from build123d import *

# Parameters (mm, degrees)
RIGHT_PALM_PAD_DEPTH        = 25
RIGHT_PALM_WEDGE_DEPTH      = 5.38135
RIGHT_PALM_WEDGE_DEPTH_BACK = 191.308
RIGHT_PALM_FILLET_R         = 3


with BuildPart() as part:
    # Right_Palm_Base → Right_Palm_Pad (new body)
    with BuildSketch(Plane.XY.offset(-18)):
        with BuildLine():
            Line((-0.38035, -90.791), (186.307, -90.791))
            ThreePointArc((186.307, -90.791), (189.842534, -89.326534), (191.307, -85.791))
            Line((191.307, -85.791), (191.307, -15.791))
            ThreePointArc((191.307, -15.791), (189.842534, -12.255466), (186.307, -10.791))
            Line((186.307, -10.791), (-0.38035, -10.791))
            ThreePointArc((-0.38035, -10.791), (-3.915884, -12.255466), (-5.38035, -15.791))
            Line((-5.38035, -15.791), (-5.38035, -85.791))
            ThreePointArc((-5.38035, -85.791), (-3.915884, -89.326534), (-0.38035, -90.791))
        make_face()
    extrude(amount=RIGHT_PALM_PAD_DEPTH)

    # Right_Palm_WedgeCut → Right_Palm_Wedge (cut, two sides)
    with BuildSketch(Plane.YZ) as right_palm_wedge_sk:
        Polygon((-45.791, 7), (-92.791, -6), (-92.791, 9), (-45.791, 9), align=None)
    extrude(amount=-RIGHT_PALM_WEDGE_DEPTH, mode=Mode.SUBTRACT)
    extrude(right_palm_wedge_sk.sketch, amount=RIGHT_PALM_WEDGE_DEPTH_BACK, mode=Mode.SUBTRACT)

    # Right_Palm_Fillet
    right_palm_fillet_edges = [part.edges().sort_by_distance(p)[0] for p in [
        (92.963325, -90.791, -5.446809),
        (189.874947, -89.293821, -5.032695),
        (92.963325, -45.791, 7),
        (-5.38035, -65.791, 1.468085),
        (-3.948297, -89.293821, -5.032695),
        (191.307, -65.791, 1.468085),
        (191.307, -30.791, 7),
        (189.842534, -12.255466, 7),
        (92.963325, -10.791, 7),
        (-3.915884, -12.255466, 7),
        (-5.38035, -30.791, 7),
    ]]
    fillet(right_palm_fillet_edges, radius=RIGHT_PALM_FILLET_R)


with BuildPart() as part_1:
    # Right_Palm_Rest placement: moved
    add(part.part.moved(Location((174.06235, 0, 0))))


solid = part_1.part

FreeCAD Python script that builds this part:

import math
import FreeCAD as App
import Part
import Sketcher


def edges_at(feature, points):
    """Names of the edges that pass closest to the given points."""
    edges = feature.Shape.Edges
    near = lambda p: min(range(len(edges)), key=lambda i: edges[i].distToShape(Part.Vertex(*p))[0])
    return sorted({f"Edge{near(p) + 1}" for p in points})

doc = App.newDocument("Part")
body = doc.addObject("PartDesign::Body", "Body")

sketch1 = body.newObject("Sketcher::SketchObject", "Sketch")
sketch1.AttachmentSupport = (doc.getObject("XY_Plane"), [""])
sketch1.MapMode = "FlatFace"
sketch1.AttachmentOffset = App.Placement(App.Vector(0, 0, -18), App.Rotation())
sketch1.addGeometry([
    Part.LineSegment(App.Vector(-0.4, -90.8, 0), App.Vector(186.3, -90.8, 0)),
    Part.ArcOfCircle(Part.Circle(App.Vector(186.3, -85.8, 0), App.Vector(0, 0, 1), 5), math.radians(-90), math.radians(0)),
    Part.LineSegment(App.Vector(191.3, -85.8, 0), App.Vector(191.3, -15.8, 0)),
    Part.ArcOfCircle(Part.Circle(App.Vector(186.3, -15.8, 0), App.Vector(0, 0, 1), 5), math.radians(0), math.radians(90)),
    Part.LineSegment(App.Vector(186.3, -10.8, 0), App.Vector(-0.4, -10.8, 0)),
    Part.ArcOfCircle(Part.Circle(App.Vector(-0.4, -15.8, 0), App.Vector(0, 0, 1), 5), math.radians(90), math.radians(180)),
    Part.LineSegment(App.Vector(-5.4, -15.8, 0), App.Vector(-5.4, -85.8, 0)),
    Part.ArcOfCircle(Part.Circle(App.Vector(-0.4, -85.8, 0), App.Vector(0, 0, 1), 5), math.radians(180), math.radians(270)),
], False)
sketch1.addConstraint([
    Sketcher.Constraint("Tangent", 0, 2, 1, 1),
    Sketcher.Constraint("Tangent", 1, 2, 2, 1),
    Sketcher.Constraint("Tangent", 2, 2, 3, 1),
    Sketcher.Constraint("Tangent", 3, 2, 4, 1),
    Sketcher.Constraint("Tangent", 4, 2, 5, 1),
    Sketcher.Constraint("Tangent", 5, 2, 6, 1),
    Sketcher.Constraint("Tangent", 6, 2, 7, 1),
    Sketcher.Constraint("Tangent", 7, 2, 0, 1),
    Sketcher.Constraint("Horizontal", 0),
    Sketcher.Constraint("Vertical", 2),
    Sketcher.Constraint("Horizontal", 4),
    Sketcher.Constraint("Vertical", 6),
    Sketcher.Constraint("Equal", 1, 3),
    Sketcher.Constraint("Equal", 3, 5),
    Sketcher.Constraint("Equal", 5, 7),
    Sketcher.Constraint("Radius", 1, 5.0),
    Sketcher.Constraint("DistanceY", 2, 1, 2, 2, 70.0),
    Sketcher.Constraint("DistanceX", -1, 1, 1, 3, 186.307),
    Sketcher.Constraint("DistanceY", 1, 3, -1, 1, 85.791),
    Sketcher.Constraint("DistanceX", 0, 1, 0, 2, 186.68735),
])
pad1 = body.newObject("PartDesign::Pad", "Pad")
pad1.Profile = sketch1
pad1.Length = 25

sketch2 = body.newObject("Sketcher::SketchObject", "Sketch001")
sketch2.AttachmentSupport = (doc.getObject("YZ_Plane"), [""])
sketch2.MapMode = "FlatFace"
sketch2.addGeometry([
    Part.LineSegment(App.Vector(-92.8, -6, 0), App.Vector(-45.8, 7, 0)),
    Part.LineSegment(App.Vector(-45.8, 7, 0), App.Vector(-45.8, 9, 0)),
    Part.LineSegment(App.Vector(-45.8, 9, 0), App.Vector(-92.8, 9, 0)),
    Part.LineSegment(App.Vector(-92.8, 9, 0), App.Vector(-92.8, -6, 0)),
], False)
sketch2.addConstraint([
    Sketcher.Constraint("Coincident", 0, 2, 1, 1),
    Sketcher.Constraint("Coincident", 1, 2, 2, 1),
    Sketcher.Constraint("Coincident", 2, 2, 3, 1),
    Sketcher.Constraint("Coincident", 3, 2, 0, 1),
    Sketcher.Constraint("Vertical", 1),
    Sketcher.Constraint("Horizontal", 2),
    Sketcher.Constraint("Vertical", 3),
    Sketcher.Constraint("DistanceX", 2, 2, 2, 1, 47.0),
    Sketcher.Constraint("DistanceY", 1, 1, 1, 2, 2.0),
    Sketcher.Constraint("DistanceY", 3, 2, 3, 1, 15.0),
    Sketcher.Constraint("DistanceY", -1, 1, 0, 2, 7.0),
    Sketcher.Constraint("DistanceX", 0, 2, -1, 1, 45.791),
])
pocket1 = body.newObject("PartDesign::Pocket", "Pocket")
pocket1.Profile = sketch2
pocket1.Type = "ThroughAll"
pocket1.Midplane = True
doc.recompute()

fillet = body.newObject("PartDesign::Fillet", "Fillet")
fillet.Base = (pocket1, edges_at(pocket1, [
    (92.963, -90.791, -5.447),
    (189.875, -89.294, -5.033),
    (92.963, -45.791, 7),
    (-5.38, -65.791, 1.468),
    (-3.948, -89.294, -5.033),
    (191.307, -65.791, 1.468),
    (191.307, -30.791, 7),
    (189.843, -12.255, 7),
    (92.963, -10.791, 7),
    (-3.916, -12.255, 7),
    (-5.38, -30.791, 7),
]))
fillet.Radius = 3
body2 = doc.addObject("PartDesign::Body", "Body001")
doc.recompute()

body.Placement = App.Placement(App.Vector(174.06235, 0, 0), App.Rotation(App.Vector(0, 0, 1), 0))
boolean = body2.newObject("PartDesign::Boolean", "Boolean")
boolean.Type = "Fuse"
boolean.addObjects([body])

doc.recompute()
